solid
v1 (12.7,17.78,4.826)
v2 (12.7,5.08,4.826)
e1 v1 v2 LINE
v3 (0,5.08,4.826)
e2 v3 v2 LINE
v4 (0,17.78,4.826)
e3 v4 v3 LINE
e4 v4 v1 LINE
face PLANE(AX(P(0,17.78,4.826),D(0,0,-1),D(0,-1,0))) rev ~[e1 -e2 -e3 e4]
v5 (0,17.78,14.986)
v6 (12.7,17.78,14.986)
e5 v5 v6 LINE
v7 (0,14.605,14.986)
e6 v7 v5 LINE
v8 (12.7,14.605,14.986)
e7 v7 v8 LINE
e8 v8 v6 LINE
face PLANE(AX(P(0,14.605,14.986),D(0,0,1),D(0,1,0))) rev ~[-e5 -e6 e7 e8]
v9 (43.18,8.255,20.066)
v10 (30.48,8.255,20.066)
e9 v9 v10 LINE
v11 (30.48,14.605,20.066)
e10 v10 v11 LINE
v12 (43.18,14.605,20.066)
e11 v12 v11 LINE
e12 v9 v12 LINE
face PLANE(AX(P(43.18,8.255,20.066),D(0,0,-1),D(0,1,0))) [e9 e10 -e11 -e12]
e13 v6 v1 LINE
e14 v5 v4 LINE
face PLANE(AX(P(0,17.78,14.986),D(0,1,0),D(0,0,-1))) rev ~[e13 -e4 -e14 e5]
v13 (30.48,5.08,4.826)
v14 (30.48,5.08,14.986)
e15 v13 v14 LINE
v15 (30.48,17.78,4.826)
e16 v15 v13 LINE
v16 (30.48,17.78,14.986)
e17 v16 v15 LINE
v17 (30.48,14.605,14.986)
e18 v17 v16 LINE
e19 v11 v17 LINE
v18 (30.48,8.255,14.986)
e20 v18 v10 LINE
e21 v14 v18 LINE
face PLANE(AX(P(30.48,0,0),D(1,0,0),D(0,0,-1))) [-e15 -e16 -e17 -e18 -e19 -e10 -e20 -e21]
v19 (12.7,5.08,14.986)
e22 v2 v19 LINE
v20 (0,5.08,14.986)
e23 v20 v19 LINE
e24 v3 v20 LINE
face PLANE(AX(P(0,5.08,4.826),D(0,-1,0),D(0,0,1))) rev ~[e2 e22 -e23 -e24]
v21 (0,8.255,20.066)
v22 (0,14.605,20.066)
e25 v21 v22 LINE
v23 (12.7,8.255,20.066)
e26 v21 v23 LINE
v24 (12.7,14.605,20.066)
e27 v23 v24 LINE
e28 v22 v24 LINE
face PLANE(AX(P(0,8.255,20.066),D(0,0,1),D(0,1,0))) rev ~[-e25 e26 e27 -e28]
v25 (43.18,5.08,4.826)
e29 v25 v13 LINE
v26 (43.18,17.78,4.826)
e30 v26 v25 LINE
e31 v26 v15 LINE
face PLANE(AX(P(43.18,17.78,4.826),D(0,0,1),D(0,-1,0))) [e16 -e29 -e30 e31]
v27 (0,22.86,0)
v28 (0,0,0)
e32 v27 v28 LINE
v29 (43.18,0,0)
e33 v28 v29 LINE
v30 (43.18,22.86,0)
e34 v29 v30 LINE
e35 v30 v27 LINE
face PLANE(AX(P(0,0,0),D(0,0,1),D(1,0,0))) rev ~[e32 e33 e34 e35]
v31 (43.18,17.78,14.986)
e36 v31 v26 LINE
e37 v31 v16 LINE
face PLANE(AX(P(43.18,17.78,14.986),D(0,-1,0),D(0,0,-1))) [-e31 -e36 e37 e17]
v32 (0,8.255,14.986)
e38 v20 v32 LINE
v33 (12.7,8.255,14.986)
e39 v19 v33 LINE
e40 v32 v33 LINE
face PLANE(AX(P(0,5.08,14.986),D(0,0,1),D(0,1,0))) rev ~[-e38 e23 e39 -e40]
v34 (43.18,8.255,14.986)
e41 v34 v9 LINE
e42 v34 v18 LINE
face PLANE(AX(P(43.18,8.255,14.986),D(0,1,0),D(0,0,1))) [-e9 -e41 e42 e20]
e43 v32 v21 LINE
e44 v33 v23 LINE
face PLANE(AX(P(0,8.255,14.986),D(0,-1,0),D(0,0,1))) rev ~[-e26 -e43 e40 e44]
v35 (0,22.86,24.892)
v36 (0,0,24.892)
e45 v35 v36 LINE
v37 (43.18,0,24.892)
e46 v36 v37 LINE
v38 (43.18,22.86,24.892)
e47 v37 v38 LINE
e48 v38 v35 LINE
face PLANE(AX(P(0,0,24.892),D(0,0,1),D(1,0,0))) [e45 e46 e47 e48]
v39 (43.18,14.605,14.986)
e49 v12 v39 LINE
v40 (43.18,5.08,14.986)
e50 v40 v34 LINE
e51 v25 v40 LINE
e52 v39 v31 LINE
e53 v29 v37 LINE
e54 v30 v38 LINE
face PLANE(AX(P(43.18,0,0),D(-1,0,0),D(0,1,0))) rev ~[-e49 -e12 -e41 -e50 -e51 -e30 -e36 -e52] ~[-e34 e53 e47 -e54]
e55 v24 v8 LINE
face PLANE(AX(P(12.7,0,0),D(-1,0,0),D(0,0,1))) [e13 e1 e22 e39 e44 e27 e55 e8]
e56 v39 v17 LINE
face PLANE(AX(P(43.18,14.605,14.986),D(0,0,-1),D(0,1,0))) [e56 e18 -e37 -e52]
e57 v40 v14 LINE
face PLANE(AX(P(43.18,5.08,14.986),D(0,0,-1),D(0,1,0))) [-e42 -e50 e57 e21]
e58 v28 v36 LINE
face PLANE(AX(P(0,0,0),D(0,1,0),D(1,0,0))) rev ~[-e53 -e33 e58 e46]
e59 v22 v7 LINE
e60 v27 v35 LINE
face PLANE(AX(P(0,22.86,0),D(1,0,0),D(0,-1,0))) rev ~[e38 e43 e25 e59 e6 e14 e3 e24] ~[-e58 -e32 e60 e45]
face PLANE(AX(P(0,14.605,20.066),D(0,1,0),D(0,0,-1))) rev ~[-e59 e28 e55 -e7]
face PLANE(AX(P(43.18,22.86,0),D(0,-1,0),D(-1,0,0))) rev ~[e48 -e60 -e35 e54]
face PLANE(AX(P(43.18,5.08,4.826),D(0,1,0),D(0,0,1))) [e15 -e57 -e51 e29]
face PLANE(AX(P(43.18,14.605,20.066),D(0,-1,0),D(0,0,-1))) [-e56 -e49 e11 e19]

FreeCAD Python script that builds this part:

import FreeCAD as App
import Part
import Sketcher

V = App.Vector
Q = App.Units.Quantity

doc = App.newDocument("Part")
body = doc.addObject("PartDesign::Body", "Body")

# Sketch on XY plane
sketch1 = doc.addObject("Sketcher::SketchObject", "Sketch")
body.addObject(sketch1)
sketch1.AttachmentSupport = (doc.XY_Plane, [""])
sketch1.MapMode = "FlatFace"
sketch1.addGeometry(Part.LineSegment(V(0, 23, 0), V(0, 0, 0)), False)
sketch1.addGeometry(Part.LineSegment(V(0, 0, 0), V(43, 0, 0)), False)
sketch1.addGeometry(Part.LineSegment(V(43, 0, 0), V(43, 23, 0)), False)
sketch1.addGeometry(Part.LineSegment(V(43, 23, 0), V(0, 23, 0)), False)
sketch1.addConstraint(Sketcher.Constraint("Coincident", 0, 2, 1, 1))
sketch1.addConstraint(Sketcher.Constraint("Coincident", 1, 2, 2, 1))
sketch1.addConstraint(Sketcher.Constraint("Coincident", 2, 2, 3, 1))
sketch1.addConstraint(Sketcher.Constraint("Coincident", 3, 2, 0, 1))
sketch1.addConstraint(Sketcher.Constraint("Vertical", 0))
sketch1.addConstraint(Sketcher.Constraint("Horizontal", 1))
sketch1.addConstraint(Sketcher.Constraint("Vertical", 2))
sketch1.addConstraint(Sketcher.Constraint("Horizontal", 3))
sketch1.addConstraint(Sketcher.Constraint("Coincident", 0, 2, -1, 1))
sketch1.addConstraint(Sketcher.Constraint("DistanceX", 1, 1, 1, 2, Q("1.7 in")))
sketch1.addConstraint(Sketcher.Constraint("DistanceY", 0, 2, 0, 1, Q("0.9 in")))
pad1 = doc.addObject("PartDesign::Pad", "Pad")
body.addObject(pad1)
pad1.Profile = sketch1
pad1.Length = Q("0.98 in")

# Sketch on YZ plane
sketch2 = doc.addObject("Sketcher::SketchObject", "Sketch001")
body.addObject(sketch2)
sketch2.AttachmentSupport = (doc.YZ_Plane, [""])
sketch2.MapMode = "FlatFace"
sketch2.AttachmentOffset = App.Placement(V(0, 0, 1.7 * 25.4), App.Rotation())
sketch2.addGeometry(Part.LineSegment(V(5.1, 15, 0), V(5.1, 4.8, 0)), False)
sketch2.addGeometry(Part.LineSegment(V(5.1, 4.8, 0), V(17.8, 4.8, 0)), False)
sketch2.addGeometry(Part.LineSegment(V(17.8, 4.8, 0), V(17.8, 15, 0)), False)
sketch2.addGeometry(Part.LineSegment(V(17.8, 15, 0), V(14.6, 15, 0)), False)
sketch2.addGeometry(Part.LineSegment(V(14.6, 15, 0), V(14.6, 20.1, 0)), False)
sketch2.addGeometry(Part.LineSegment(V(14.6, 20.1, 0), V(8.3, 20.1, 0)), False)
sketch2.addGeometry(Part.LineSegment(V(8.3, 20.1, 0), V(8.3, 15, 0)), False)
sketch2.addGeometry(Part.LineSegment(V(8.3, 15, 0), V(5.1, 15, 0)), False)
sketch2.addConstraint(Sketcher.Constraint("Coincident", 0, 2, 1, 1))
sketch2.addConstraint(Sketcher.Constraint("Coincident", 1, 2, 2, 1))
sketch2.addConstraint(Sketcher.Constraint("Coincident", 2, 2, 3, 1))
sketch2.addConstraint(Sketcher.Constraint("Coincident", 3, 2, 4, 1))
sketch2.addConstraint(Sketcher.Constraint("Coincident", 4, 2, 5, 1))
sketch2.addConstraint(Sketcher.Constraint("Coincident", 5, 2, 6, 1))
sketch2.addConstraint(Sketcher.Constraint("Coincident", 6, 2, 7, 1))
sketch2.addConstraint(Sketcher.Constraint("Coincident", 7, 2, 0, 1))
sketch2.addConstraint(Sketcher.Constraint("Vertical", 0))
sketch2.addConstraint(Sketcher.Constraint("Horizontal", 1))
sketch2.addConstraint(Sketcher.Constraint("Vertical", 2))
sketch2.addConstraint(Sketcher.Constraint("Horizontal", 3))
sketch2.addConstraint(Sketcher.Constraint("Vertical", 4))
sketch2.addConstraint(Sketcher.Constraint("Horizontal", 5))
sketch2.addConstraint(Sketcher.Constraint("Vertical", 6))
sketch2.addConstraint(Sketcher.Constraint("Horizontal", 7))
sketch2.addConstraint(Sketcher.Constraint("Horizontal", 3, 2, 6, 2))
sketch2.addConstraint(Sketcher.Constraint("Equal", 3, 7))
sketch2.addConstraint(Sketcher.Constraint("DistanceX", 1, 1, 1, 2, Q("0.5 in")))
sketch2.addConstraint(Sketcher.Constraint("DistanceY", 0, 2, 0, 1, Q("0.4 in")))
sketch2.addConstraint(Sketcher.Constraint("DistanceY", 4, 1, 4, 2, Q("0.2 in")))
sketch2.addConstraint(Sketcher.Constraint("DistanceX", 5, 2, 5, 1, Q("0.25 in")))
sketch2.addConstraint(Sketcher.Constraint("DistanceX", -1, 1, 0, 2, Q("0.2 in")))
sketch2.addConstraint(Sketcher.Constraint("DistanceY", -1, 1, 0, 2, Q("0.19 in")))
pocket1 = doc.addObject("PartDesign::Pocket", "Pocket")
body.addObject(pocket1)
pocket1.Profile = sketch2
pocket1.Length = Q("0.5 in")

# Sketch on YZ plane
sketch3 = doc.addObject("Sketcher::SketchObject", "Sketch002")
body.addObject(sketch3)
sketch3.AttachmentSupport = (doc.YZ_Plane, [""])
sketch3.MapMode = "FlatFace"
sketch3.addGeometry(Part.LineSegment(V(14.6, 20.1, 0), V(14.6, 15, 0)), False)
sketch3.addGeometry(Part.LineSegment(V(14.6, 15, 0), V(17.8, 15, 0)), False)
sketch3.addGeometry(Part.LineSegment(V(17.8, 15, 0), V(17.8, 4.8, 0)), False)
sketch3.addGeometry(Part.LineSegment(V(17.8, 4.8, 0), V(5.1, 4.8, 0)), False)
sketch3.addGeometry(Part.LineSegment(V(5.1, 4.8, 0), V(5.1, 15, 0)), False)
sketch3.addGeometry(Part.LineSegment(V(5.1, 15, 0), V(8.3, 15, 0)), False)
sketch3.addGeometry(Part.LineSegment(V(8.3, 15, 0), V(8.3, 20.1, 0)), False)
sketch3.addGeometry(Part.LineSegment(V(8.3, 20.1, 0), V(14.6, 20.1, 0)), False)
sketch3.addConstraint(Sketcher.Constraint("Coincident", 0, 2, 1, 1))
sketch3.addConstraint(Sketcher.Constraint("Coincident", 1, 2, 2, 1))
sketch3.addConstraint(Sketcher.Constraint("Coincident", 2, 2, 3, 1))
sketch3.addConstraint(Sketcher.Constraint("Coincident", 3, 2, 4, 1))
sketch3.addConstraint(Sketcher.Constraint("Coincident", 4, 2, 5, 1))
sketch3.addConstraint(Sketcher.Constraint("Coincident", 5, 2, 6, 1))
sketch3.addConstraint(Sketcher.Constraint("Coincident", 6, 2, 7, 1))
sketch3.addConstraint(Sketcher.Constraint("Coincident", 7, 2, 0, 1))
sketch3.addConstraint(Sketcher.Constraint("Vertical", 0))
sketch3.addConstraint(Sketcher.Constraint("Horizontal", 1))
sketch3.addConstraint(Sketcher.Constraint("Vertical", 2))
sketch3.addConstraint(Sketcher.Constraint("Horizontal", 3))
sketch3.addConstraint(Sketcher.Constraint("Vertical", 4))
sketch3.addConstraint(Sketcher.Constraint("Horizontal", 5))
sketch3.addConstraint(Sketcher.Constraint("Vertical", 6))
sketch3.addConstraint(Sketcher.Constraint("Horizontal", 7))
sketch3.addConstraint(Sketcher.Constraint("Horizontal", 1, 2, 4, 2))
sketch3.addConstraint(Sketcher.Constraint("Equal", 1, 5))
sketch3.addConstraint(Sketcher.Constraint("DistanceX", 3, 2, 3, 1, Q("0.5 in")))
sketch3.addConstraint(Sketcher.Constraint("DistanceY", 0, 2, 0, 1, Q("0.2 in")))
sketch3.addConstraint(Sketcher.Constraint("DistanceY", 2, 2, 2, 1, Q("0.4 in")))
sketch3.addConstraint(Sketcher.Constraint("DistanceX", 7, 1, 7, 2, Q("0.25 in")))
sketch3.addConstraint(Sketcher.Constraint("DistanceX", -1, 1, 1, 2, Q("0.7 in")))
sketch3.addConstraint(Sketcher.Constraint("DistanceY", -1, 1, 0, 2, Q("0.59 in")))
pocket2 = doc.addObject("PartDesign::Pocket", "Pocket001")
body.addObject(pocket2)
pocket2.Profile = sketch3
pocket2.Length = Q("0.5 in")
pocket2.Reversed = True

doc.recompute()
